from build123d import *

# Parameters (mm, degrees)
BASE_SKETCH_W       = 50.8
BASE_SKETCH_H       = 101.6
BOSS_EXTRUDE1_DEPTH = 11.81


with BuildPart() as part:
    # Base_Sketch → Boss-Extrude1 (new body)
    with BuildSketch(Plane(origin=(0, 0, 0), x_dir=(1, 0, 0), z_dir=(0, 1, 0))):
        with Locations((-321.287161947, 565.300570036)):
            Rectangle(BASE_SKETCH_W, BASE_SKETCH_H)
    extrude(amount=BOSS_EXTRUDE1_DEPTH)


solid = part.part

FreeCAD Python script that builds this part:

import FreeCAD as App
import Part
import Sketcher
Q = App.Units.Quantity


def add_polygon(sketch, points):
    """Adds a closed chain of lines whose ends are joined by coincident constraints."""
    first, n = sketch.GeometryCount, len(points)
    for a, b in zip(points, points[1:] + points[:1]):
        sketch.addGeometry(Part.LineSegment(App.Vector(*a, 0), App.Vector(*b, 0)), False)
    for i in range(n):
        sketch.addConstraint(Sketcher.Constraint("Coincident", first + i, 2, first + (i + 1) % n, 1))

doc = App.newDocument("Part")
params = doc.addObject("Spreadsheet::Sheet", "Params")
for row, (alias, value) in enumerate([
    ("sketch1_width", "2 in"),
    ("sketch1_height", "4 in"),
    ("pad1_length", "11.81 mm"),
], start=1):
    params.set(f"A{row}", alias)
    params.set(f"B{row}", "=" + value)
    params.setAlias(f"B{row}", alias)

body = doc.addObject("PartDesign::Body", "Body")

# Sketch on XZ plane
sketch1 = doc.addObject("Sketcher::SketchObject", "Sketch")
body.addObject(sketch1)
sketch1.AttachmentSupport = (doc.XZ_Plane, [""])
sketch1.MapMode = "FlatFace"
add_polygon(sketch1, [(-347, -616), (-347, -515), (-296, -515), (-296, -616)])  # lines 0-3
sketch1.addConstraint(Sketcher.Constraint("Vertical", 0))
sketch1.addConstraint(Sketcher.Constraint("Horizontal", 1))
sketch1.addConstraint(Sketcher.Constraint("Vertical", 2))
sketch1.addConstraint(Sketcher.Constraint("Horizontal", 3))
sketch1.addConstraint(Sketcher.Constraint("DistanceX", 1, 1, 1, 2, Q("2 in")))
sketch1.addConstraint(Sketcher.Constraint("DistanceY", 0, 1, 0, 2, Q("4 in")))
sketch1.addConstraint(Sketcher.Constraint("DistanceX", 0, 2, -1, 1, Q("346.687162 mm")))
sketch1.addConstraint(Sketcher.Constraint("DistanceY", 0, 2, -1, 1, Q("514.50057 mm")))
sketch1.setExpression("Constraints[8]", "Params.sketch1_width")
sketch1.setExpression("Constraints[9]", "Params.sketch1_height")
pad1 = doc.addObject("PartDesign::Pad", "Pad")
body.addObject(pad1)
pad1.Profile = sketch1
pad1.setExpression("Length", "Params.pad1_length")
pad1.Reversed = True

doc.recompute()
